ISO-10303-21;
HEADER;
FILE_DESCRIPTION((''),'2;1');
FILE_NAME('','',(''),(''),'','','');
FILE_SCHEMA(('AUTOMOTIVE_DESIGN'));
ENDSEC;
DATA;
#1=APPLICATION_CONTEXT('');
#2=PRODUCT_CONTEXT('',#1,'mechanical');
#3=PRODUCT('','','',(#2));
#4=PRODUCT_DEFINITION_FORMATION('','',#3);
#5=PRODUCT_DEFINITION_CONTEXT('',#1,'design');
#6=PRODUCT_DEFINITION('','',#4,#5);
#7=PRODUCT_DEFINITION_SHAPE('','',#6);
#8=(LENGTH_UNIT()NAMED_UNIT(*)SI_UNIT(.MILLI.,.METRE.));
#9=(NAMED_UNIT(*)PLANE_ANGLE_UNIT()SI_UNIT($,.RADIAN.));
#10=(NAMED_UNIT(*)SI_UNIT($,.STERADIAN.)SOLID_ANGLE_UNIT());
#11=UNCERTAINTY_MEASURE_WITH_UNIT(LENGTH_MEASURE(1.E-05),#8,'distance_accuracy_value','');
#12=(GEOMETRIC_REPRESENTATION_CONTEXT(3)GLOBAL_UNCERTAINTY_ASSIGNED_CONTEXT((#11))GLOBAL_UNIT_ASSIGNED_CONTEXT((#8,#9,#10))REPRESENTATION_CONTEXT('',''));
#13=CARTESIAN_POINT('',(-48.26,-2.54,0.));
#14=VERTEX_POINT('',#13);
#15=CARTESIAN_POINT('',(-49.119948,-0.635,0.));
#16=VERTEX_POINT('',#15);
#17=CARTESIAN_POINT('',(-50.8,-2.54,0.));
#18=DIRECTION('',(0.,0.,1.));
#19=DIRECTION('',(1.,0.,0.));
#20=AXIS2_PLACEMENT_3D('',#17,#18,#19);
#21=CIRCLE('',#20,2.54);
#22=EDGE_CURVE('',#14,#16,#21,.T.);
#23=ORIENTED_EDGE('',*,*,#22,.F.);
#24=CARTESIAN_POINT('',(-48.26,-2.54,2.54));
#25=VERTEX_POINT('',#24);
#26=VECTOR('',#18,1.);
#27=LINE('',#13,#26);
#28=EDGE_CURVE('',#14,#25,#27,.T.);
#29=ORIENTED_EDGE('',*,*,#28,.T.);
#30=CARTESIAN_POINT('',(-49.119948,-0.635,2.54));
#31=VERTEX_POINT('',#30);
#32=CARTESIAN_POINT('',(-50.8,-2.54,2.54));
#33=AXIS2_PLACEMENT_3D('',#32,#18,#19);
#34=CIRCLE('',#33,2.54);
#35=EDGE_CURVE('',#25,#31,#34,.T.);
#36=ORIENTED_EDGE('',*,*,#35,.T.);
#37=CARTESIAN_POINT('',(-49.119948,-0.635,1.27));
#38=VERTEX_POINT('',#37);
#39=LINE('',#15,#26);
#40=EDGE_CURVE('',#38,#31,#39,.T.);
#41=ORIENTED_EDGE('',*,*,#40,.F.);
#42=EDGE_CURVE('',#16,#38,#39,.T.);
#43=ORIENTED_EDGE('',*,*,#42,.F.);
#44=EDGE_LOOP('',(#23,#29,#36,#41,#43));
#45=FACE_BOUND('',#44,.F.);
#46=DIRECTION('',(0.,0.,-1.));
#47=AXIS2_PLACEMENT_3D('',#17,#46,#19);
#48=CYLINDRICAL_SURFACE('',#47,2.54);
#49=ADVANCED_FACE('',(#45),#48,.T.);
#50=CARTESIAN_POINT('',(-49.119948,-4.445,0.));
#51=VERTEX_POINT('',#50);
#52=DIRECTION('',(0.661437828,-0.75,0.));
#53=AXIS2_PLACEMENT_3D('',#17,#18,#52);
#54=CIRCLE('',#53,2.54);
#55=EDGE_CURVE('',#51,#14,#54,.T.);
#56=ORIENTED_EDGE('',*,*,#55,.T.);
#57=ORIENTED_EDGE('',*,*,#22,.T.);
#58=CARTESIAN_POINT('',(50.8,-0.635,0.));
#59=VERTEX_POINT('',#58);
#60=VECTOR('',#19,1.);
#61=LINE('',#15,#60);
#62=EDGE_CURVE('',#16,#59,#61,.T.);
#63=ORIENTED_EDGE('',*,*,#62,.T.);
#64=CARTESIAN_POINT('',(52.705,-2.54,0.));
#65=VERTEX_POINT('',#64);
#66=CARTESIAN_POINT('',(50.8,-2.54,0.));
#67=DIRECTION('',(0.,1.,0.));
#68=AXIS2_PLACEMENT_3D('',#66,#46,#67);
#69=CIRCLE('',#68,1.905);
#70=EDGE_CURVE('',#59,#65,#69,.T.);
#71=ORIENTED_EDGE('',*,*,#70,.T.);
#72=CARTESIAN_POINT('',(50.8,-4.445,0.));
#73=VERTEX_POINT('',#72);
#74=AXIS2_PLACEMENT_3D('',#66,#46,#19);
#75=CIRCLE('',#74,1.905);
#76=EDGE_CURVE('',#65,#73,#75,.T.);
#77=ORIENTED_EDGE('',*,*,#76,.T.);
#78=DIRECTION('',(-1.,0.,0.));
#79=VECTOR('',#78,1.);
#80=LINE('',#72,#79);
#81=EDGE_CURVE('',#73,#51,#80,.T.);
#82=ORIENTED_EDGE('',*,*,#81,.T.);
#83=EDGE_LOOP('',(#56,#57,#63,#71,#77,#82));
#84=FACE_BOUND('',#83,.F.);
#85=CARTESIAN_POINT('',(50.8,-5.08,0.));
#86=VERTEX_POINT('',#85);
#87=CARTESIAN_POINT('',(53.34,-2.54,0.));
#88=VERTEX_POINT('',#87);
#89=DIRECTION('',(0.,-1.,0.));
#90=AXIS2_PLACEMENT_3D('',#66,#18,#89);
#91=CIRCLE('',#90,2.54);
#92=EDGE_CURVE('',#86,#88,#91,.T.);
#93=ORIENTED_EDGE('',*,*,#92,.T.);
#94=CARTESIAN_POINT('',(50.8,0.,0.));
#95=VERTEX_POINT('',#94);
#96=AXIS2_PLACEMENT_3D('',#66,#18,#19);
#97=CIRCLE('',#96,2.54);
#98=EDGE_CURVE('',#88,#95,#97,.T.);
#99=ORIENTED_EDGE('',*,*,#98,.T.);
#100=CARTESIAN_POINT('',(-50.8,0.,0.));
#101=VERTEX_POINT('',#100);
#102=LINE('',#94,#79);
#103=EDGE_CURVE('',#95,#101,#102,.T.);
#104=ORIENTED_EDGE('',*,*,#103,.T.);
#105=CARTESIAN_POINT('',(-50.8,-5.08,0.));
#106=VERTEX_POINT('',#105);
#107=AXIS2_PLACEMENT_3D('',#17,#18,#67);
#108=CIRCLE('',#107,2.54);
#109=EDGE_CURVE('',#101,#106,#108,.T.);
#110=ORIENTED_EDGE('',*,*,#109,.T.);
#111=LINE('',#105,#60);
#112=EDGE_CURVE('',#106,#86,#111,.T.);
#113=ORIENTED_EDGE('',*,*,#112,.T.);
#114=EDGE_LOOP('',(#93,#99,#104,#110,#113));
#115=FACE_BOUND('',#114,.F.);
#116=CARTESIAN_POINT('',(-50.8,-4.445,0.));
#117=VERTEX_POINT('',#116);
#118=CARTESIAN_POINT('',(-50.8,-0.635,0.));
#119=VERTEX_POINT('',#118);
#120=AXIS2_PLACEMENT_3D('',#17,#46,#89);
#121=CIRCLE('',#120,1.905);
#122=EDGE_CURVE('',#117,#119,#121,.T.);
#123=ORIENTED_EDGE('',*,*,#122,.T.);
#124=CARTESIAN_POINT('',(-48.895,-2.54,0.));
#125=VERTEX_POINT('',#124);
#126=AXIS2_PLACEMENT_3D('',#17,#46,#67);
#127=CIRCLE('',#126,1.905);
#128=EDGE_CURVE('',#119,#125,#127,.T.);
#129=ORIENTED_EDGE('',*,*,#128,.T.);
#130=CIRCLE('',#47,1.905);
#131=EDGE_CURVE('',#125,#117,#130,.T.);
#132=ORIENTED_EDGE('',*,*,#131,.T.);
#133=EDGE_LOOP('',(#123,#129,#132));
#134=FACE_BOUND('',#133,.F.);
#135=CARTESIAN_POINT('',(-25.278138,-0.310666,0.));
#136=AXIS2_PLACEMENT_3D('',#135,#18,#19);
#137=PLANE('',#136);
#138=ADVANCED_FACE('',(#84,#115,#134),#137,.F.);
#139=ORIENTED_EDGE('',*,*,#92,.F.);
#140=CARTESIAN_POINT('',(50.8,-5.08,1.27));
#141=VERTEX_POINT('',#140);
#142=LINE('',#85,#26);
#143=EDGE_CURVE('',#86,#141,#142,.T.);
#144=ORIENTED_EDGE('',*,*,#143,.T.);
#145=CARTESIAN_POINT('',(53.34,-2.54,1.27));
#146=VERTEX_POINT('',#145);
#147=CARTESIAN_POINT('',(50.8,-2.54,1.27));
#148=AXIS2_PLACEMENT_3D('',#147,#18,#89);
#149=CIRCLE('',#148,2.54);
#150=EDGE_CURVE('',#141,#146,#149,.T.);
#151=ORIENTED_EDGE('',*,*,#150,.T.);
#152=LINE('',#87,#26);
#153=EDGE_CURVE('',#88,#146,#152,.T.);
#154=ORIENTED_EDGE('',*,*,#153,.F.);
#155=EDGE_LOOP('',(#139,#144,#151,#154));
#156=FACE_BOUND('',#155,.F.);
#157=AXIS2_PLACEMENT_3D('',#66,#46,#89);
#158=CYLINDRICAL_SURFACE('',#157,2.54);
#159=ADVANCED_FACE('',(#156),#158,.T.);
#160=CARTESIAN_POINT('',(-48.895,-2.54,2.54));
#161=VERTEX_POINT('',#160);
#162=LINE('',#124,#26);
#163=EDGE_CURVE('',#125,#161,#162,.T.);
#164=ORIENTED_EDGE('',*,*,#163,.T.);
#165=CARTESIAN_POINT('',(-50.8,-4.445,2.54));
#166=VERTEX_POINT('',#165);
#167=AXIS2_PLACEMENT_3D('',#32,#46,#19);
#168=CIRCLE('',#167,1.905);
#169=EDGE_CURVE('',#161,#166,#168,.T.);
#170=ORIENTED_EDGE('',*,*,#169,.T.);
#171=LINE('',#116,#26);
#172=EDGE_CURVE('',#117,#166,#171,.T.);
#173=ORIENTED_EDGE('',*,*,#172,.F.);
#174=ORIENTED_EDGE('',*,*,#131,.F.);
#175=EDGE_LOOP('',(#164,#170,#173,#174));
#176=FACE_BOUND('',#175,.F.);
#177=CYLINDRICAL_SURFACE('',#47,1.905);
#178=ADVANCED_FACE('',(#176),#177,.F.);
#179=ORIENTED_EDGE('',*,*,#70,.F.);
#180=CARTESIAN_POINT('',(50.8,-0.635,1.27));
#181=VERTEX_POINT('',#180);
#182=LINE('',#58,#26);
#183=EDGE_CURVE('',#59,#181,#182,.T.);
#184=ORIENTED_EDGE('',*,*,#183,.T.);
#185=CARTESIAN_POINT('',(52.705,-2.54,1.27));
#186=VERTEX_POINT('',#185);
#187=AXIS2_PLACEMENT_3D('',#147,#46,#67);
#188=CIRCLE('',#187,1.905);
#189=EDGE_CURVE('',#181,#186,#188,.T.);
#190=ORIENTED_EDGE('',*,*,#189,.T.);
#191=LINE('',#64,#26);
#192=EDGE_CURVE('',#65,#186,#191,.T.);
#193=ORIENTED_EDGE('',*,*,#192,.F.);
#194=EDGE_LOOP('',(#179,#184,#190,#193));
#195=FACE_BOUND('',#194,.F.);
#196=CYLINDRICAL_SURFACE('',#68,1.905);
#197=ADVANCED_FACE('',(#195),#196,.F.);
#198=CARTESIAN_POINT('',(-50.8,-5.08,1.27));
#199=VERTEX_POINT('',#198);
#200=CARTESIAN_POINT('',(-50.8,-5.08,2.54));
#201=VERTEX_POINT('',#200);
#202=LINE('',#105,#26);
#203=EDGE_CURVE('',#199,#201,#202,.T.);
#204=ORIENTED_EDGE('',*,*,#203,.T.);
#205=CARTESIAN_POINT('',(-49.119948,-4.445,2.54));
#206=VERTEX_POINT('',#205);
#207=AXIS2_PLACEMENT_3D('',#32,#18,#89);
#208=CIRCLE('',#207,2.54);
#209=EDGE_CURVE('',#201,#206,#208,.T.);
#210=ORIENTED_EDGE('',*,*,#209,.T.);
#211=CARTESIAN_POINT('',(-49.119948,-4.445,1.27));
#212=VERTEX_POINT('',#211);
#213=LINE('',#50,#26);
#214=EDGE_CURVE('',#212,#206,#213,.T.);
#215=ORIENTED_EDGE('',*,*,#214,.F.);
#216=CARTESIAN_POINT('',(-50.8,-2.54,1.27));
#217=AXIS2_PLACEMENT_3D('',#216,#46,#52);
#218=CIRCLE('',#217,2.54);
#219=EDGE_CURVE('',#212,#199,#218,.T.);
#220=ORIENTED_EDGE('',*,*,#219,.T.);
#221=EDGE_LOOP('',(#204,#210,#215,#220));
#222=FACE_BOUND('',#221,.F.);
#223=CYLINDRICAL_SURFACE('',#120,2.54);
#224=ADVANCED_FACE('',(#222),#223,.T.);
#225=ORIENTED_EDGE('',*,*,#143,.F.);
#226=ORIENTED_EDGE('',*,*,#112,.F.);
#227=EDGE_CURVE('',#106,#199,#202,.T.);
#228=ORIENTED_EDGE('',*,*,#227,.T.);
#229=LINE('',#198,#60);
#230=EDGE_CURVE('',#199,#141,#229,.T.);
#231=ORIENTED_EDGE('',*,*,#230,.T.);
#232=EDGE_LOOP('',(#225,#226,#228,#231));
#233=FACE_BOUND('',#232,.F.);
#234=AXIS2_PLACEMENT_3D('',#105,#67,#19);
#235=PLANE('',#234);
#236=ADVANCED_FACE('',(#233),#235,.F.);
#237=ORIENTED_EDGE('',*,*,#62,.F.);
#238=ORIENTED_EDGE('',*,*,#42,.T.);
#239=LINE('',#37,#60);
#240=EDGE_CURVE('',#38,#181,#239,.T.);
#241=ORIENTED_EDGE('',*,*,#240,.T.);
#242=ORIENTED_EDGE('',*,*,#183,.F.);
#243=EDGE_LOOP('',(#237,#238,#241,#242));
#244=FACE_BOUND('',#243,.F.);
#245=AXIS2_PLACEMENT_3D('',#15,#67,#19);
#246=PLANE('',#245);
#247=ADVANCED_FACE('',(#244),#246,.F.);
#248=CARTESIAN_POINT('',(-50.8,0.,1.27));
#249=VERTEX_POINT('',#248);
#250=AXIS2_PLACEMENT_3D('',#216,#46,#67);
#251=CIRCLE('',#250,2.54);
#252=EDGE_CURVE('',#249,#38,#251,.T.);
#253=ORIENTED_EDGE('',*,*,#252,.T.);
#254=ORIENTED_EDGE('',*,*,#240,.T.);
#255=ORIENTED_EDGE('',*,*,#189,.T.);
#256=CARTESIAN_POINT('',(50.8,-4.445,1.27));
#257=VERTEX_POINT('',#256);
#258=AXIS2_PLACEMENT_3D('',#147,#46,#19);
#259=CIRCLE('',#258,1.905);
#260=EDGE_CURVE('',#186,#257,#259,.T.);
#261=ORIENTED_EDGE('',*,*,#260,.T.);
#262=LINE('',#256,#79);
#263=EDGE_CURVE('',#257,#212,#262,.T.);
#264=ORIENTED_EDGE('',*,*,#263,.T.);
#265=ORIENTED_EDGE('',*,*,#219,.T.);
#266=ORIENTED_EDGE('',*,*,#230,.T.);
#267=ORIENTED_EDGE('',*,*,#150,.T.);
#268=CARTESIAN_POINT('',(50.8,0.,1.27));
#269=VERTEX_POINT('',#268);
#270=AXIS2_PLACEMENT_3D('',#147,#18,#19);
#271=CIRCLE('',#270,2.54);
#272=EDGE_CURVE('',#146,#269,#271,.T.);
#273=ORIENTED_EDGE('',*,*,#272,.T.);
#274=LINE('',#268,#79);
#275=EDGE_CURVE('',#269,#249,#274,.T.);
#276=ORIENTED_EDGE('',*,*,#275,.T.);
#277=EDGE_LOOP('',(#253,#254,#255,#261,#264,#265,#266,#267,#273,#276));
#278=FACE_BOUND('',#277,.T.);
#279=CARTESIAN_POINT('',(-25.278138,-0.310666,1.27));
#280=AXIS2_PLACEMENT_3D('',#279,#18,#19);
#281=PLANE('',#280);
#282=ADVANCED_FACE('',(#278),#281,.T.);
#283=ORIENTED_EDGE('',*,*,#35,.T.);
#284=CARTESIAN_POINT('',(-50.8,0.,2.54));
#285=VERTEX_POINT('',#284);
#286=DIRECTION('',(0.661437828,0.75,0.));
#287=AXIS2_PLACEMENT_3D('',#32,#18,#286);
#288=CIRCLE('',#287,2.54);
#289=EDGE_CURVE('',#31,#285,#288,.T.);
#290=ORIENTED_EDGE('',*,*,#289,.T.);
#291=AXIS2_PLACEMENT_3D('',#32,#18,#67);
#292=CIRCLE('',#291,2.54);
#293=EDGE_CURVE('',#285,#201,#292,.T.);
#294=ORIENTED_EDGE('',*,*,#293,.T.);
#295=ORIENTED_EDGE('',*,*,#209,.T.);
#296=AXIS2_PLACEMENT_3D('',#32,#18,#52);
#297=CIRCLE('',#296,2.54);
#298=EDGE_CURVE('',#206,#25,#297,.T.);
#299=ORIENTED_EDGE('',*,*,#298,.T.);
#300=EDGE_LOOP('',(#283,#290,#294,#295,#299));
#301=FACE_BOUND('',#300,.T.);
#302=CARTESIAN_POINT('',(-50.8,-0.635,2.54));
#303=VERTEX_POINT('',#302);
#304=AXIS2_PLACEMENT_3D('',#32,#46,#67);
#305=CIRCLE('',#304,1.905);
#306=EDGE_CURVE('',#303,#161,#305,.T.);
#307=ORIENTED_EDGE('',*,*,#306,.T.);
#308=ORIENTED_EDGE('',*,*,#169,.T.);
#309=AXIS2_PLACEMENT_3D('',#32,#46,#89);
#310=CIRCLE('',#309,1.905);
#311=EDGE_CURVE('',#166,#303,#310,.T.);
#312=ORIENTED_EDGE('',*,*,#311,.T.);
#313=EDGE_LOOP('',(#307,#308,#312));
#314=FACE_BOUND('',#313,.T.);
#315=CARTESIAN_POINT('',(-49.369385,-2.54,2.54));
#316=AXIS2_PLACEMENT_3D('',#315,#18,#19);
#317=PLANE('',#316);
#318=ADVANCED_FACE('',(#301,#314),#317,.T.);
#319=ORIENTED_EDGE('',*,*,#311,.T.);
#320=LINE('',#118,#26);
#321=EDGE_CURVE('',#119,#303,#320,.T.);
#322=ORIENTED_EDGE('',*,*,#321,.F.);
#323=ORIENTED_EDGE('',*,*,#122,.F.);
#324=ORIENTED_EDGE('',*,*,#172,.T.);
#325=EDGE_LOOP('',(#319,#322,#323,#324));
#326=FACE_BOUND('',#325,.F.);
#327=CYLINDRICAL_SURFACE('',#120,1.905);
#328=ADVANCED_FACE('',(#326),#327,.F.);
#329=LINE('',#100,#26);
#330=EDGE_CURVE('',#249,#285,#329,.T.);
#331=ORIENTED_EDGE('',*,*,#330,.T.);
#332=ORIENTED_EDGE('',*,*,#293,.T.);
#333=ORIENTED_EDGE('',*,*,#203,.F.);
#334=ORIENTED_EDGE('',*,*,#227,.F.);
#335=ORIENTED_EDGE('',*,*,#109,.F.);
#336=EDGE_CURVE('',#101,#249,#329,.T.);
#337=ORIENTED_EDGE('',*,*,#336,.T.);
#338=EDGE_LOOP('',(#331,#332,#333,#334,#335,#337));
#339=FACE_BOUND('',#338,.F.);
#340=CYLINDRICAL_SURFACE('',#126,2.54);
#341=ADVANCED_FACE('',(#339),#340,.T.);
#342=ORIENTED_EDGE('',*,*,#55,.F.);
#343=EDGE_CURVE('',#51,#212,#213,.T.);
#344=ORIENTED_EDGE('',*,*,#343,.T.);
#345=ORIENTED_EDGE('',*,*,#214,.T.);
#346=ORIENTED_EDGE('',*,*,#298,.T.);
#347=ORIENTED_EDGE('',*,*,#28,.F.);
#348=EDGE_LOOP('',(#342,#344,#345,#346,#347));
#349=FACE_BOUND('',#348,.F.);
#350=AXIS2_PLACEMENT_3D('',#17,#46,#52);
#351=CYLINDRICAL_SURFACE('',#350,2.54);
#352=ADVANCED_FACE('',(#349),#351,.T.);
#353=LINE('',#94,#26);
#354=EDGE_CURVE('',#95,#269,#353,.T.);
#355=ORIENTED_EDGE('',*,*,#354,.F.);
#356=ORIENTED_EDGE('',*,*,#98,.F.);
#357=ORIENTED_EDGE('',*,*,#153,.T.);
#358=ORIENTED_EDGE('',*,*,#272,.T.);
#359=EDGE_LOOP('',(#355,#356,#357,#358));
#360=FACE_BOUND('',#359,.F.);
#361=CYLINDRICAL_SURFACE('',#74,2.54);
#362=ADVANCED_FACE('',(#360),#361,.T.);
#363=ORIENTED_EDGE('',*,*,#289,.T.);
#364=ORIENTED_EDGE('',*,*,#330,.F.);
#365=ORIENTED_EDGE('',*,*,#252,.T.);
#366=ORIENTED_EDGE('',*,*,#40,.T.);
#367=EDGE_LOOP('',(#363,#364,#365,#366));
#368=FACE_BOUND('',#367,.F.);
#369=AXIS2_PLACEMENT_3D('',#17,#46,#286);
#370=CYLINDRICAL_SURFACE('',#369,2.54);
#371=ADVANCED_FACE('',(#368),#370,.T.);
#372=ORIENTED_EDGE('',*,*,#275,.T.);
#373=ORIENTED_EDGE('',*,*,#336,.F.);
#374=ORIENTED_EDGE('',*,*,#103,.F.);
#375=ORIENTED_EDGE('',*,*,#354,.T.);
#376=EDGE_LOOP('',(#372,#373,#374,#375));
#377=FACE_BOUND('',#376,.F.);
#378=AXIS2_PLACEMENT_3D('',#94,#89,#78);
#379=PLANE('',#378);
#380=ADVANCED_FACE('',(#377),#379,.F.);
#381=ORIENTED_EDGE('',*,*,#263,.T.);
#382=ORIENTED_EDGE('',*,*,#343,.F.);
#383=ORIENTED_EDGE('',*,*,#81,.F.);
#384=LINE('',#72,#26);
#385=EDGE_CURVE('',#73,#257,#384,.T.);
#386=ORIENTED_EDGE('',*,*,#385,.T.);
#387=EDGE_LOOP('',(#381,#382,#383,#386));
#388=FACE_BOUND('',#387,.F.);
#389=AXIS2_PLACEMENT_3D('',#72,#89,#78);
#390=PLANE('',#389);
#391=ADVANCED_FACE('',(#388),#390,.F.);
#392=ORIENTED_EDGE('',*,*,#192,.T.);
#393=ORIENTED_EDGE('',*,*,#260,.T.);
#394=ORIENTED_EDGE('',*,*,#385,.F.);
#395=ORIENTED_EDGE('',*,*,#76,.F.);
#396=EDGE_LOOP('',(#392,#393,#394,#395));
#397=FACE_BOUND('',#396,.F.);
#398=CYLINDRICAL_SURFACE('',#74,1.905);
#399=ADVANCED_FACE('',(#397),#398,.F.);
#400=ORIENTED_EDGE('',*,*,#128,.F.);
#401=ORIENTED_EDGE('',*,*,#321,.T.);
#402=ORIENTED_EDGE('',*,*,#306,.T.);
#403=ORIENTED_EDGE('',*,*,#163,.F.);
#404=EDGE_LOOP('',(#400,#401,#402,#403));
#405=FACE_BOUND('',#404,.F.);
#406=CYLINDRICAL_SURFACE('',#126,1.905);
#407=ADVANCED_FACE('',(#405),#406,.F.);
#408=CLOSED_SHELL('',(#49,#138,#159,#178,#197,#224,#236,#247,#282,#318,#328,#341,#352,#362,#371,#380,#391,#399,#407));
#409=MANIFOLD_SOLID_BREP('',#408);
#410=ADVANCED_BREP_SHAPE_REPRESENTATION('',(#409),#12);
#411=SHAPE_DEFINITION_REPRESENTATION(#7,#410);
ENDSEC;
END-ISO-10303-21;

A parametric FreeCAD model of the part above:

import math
import FreeCAD as App
import Part
import Sketcher
from FreeCAD import Vector
Q = App.Units.Quantity

doc = App.newDocument("Part")
body = doc.addObject("PartDesign::Body", "Body")

# Sketch on XY plane
sketch1 = body.newObject("Sketcher::SketchObject", "Sketch")
sketch1.AttachmentSupport = (doc.getObject("XY_Plane"), [""])
sketch1.MapMode = "FlatFace"
sketch1.addGeometry([
    Part.ArcOfCircle(Part.Circle(Vector(-50.8, -2.54, 0), Vector(0, 0, 1), 2.54), math.radians(90), math.radians(270)),  # 0
    Part.ArcOfCircle(Part.Circle(Vector(-50.8, -2.54, 0), Vector(0, 0, 1), 2.54), math.radians(-90), math.radians(-48.590378)),  # 1
    Part.ArcOfCircle(Part.Circle(Vector(-50.8, -2.54, 0), Vector(0, 0, 1), 2.54), math.radians(-48.590378), math.radians(0)),  # 2
    Part.ArcOfCircle(Part.Circle(Vector(-50.8, -2.54, 0), Vector(0, 0, 1), 2.54), math.radians(0), math.radians(48.590378)),  # 3
    Part.ArcOfCircle(Part.Circle(Vector(-50.8, -2.54, 0), Vector(0, 0, 1), 2.54), math.radians(48.590378), math.radians(90)),  # 4
    Part.ArcOfCircle(Part.Circle(Vector(-50.8, -2.54, 0), Vector(0, 0, 1), 1.905), math.radians(-90), math.radians(0)),  # 5
    Part.ArcOfCircle(Part.Circle(Vector(-50.8, -2.54, 0), Vector(0, 0, 1), 1.905), math.radians(90), math.radians(270)),  # 6
    Part.ArcOfCircle(Part.Circle(Vector(-50.8, -2.54, 0), Vector(0, 0, 1), 1.905), math.radians(0), math.radians(90)),  # 7
], False)
sketch1.addConstraint([
    Sketcher.Constraint("Tangent", 0, 2, 1, 1),
    Sketcher.Constraint("Tangent", 1, 2, 2, 1),
    Sketcher.Constraint("Tangent", 2, 2, 3, 1),
    Sketcher.Constraint("Tangent", 3, 2, 4, 1),
    Sketcher.Constraint("Tangent", 4, 2, 0, 1),
    Sketcher.Constraint("Tangent", 5, 1, 6, 2),
    Sketcher.Constraint("Tangent", 6, 1, 7, 2),
    Sketcher.Constraint("Tangent", 7, 1, 5, 2),
    Sketcher.Constraint("Coincident", 2, 3, 0, 3),
    Sketcher.Constraint("Coincident", 5, 3, 0, 3),
    Sketcher.Constraint("PointOnObject", 4, 2, -1),
    Sketcher.Constraint("Horizontal", 7, 3, 2, 2),
    Sketcher.Constraint("Horizontal", 1, 2, 5, 1),
    Sketcher.Constraint("Horizontal", 3, 2, 6, 1),
    Sketcher.Constraint("Horizontal", 2, 2, 7, 1),
    Sketcher.Constraint("Vertical", 7, 3, 0, 2),
    Sketcher.Constraint("Vertical", 0, 2, 4, 2),
    Sketcher.Constraint("Vertical", 4, 2, 5, 1),
    Sketcher.Constraint("Vertical", 5, 1, 6, 1),
    Sketcher.Constraint("Radius", 0, Q("0.1 in")),
    Sketcher.Constraint("DistanceX", 0, 3, -1, 1, Q("2 in")),
    Sketcher.Constraint("Radius", 5, Q("0.075 in")),
])
pad1 = body.newObject("PartDesign::Pad", "Pad")
pad1.Profile = sketch1
pad1.Length = Q("0.1 in")

# Sketch on XY plane
sketch2 = body.newObject("Sketcher::SketchObject", "Sketch001")
sketch2.AttachmentSupport = (doc.getObject("XY_Plane"), [""])
sketch2.MapMode = "FlatFace"
sketch2.addGeometry([
    Part.ArcOfCircle(Part.Circle(Vector(-50.8, -2.54, 0), Vector(0, 0, 1), 2.54), math.radians(48.590378), math.radians(90)),  # 0
    Part.LineSegment(Vector(-49.119948, -0.635, 0), Vector(50.8, -0.635, 0)),  # 1
    Part.ArcOfCircle(Part.Circle(Vector(50.8, -2.54, 0), Vector(0, 0, 1), 1.905), math.radians(0), math.radians(90)),  # 2
    Part.ArcOfCircle(Part.Circle(Vector(50.8, -2.54, 0), Vector(0, 0, 1), 1.905), math.radians(-90), math.radians(0)),  # 3
    Part.LineSegment(Vector(50.8, -4.445, 0), Vector(-49.119948, -4.445, 0)),  # 4
    Part.ArcOfCircle(Part.Circle(Vector(-50.8, -2.54, 0), Vector(0, 0, 1), 2.54), math.radians(-90), math.radians(-48.590378)),  # 5
    Part.LineSegment(Vector(-50.8, -5.08, 0), Vector(50.8, -5.08, 0)),  # 6
    Part.ArcOfCircle(Part.Circle(Vector(50.8, -2.54, 0), Vector(0, 0, 1), 2.54), math.radians(-90), math.radians(0)),  # 7
    Part.ArcOfCircle(Part.Circle(Vector(50.8, -2.54, 0), Vector(0, 0, 1), 2.54), math.radians(0), math.radians(90)),  # 8
    Part.LineSegment(Vector(50.8, 0, 0), Vector(-50.8, 0, 0)),  # 9
], False)
sketch2.addConstraint([
    Sketcher.Constraint("Coincident", 0, 1, 1, 1),
    Sketcher.Constraint("Tangent", 1, 2, 2, 2),
    Sketcher.Constraint("Tangent", 2, 1, 3, 2),
    Sketcher.Constraint("Tangent", 3, 1, 4, 1),
    Sketcher.Constraint("Coincident", 4, 2, 5, 2),
    Sketcher.Constraint("Tangent", 5, 1, 6, 1),
    Sketcher.Constraint("Tangent", 6, 2, 7, 1),
    Sketcher.Constraint("Tangent", 7, 2, 8, 1),
    Sketcher.Constraint("Tangent", 8, 2, 9, 1),
    Sketcher.Constraint("Tangent", 9, 2, 0, 2),
    Sketcher.Constraint("Horizontal", 1),
    Sketcher.Constraint("Horizontal", 4),
    Sketcher.Constraint("Horizontal", 6),
    Sketcher.Constraint("Horizontal", 9),
    Sketcher.Constraint("Coincident", 5, 3, 0, 3),
    Sketcher.Constraint("Coincident", 7, 3, 2, 3),
    Sketcher.Constraint("Equal", 2, 3),
    Sketcher.Constraint("Equal", 0, 5),
    Sketcher.Constraint("Equal", 5, 7),
    Sketcher.Constraint("Symmetric", 8, 2, 9, 2, -1, 1),
    Sketcher.Constraint("Horizontal", 8, 3, 2, 1),
    Sketcher.Constraint("Horizontal", 2, 1, 7, 2),
    Sketcher.Constraint("Radius", 0, Q("0.1 in")),
    Sketcher.Constraint("DistanceX", 6, 1, 6, 2, Q("4 in")),
    Sketcher.Constraint("Radius", 2, Q("0.075 in")),
])
pad2 = body.newObject("PartDesign::Pad", "Pad001")
pad2.Profile = sketch2
pad2.Length = Q("0.05 in")

doc.recompute()
